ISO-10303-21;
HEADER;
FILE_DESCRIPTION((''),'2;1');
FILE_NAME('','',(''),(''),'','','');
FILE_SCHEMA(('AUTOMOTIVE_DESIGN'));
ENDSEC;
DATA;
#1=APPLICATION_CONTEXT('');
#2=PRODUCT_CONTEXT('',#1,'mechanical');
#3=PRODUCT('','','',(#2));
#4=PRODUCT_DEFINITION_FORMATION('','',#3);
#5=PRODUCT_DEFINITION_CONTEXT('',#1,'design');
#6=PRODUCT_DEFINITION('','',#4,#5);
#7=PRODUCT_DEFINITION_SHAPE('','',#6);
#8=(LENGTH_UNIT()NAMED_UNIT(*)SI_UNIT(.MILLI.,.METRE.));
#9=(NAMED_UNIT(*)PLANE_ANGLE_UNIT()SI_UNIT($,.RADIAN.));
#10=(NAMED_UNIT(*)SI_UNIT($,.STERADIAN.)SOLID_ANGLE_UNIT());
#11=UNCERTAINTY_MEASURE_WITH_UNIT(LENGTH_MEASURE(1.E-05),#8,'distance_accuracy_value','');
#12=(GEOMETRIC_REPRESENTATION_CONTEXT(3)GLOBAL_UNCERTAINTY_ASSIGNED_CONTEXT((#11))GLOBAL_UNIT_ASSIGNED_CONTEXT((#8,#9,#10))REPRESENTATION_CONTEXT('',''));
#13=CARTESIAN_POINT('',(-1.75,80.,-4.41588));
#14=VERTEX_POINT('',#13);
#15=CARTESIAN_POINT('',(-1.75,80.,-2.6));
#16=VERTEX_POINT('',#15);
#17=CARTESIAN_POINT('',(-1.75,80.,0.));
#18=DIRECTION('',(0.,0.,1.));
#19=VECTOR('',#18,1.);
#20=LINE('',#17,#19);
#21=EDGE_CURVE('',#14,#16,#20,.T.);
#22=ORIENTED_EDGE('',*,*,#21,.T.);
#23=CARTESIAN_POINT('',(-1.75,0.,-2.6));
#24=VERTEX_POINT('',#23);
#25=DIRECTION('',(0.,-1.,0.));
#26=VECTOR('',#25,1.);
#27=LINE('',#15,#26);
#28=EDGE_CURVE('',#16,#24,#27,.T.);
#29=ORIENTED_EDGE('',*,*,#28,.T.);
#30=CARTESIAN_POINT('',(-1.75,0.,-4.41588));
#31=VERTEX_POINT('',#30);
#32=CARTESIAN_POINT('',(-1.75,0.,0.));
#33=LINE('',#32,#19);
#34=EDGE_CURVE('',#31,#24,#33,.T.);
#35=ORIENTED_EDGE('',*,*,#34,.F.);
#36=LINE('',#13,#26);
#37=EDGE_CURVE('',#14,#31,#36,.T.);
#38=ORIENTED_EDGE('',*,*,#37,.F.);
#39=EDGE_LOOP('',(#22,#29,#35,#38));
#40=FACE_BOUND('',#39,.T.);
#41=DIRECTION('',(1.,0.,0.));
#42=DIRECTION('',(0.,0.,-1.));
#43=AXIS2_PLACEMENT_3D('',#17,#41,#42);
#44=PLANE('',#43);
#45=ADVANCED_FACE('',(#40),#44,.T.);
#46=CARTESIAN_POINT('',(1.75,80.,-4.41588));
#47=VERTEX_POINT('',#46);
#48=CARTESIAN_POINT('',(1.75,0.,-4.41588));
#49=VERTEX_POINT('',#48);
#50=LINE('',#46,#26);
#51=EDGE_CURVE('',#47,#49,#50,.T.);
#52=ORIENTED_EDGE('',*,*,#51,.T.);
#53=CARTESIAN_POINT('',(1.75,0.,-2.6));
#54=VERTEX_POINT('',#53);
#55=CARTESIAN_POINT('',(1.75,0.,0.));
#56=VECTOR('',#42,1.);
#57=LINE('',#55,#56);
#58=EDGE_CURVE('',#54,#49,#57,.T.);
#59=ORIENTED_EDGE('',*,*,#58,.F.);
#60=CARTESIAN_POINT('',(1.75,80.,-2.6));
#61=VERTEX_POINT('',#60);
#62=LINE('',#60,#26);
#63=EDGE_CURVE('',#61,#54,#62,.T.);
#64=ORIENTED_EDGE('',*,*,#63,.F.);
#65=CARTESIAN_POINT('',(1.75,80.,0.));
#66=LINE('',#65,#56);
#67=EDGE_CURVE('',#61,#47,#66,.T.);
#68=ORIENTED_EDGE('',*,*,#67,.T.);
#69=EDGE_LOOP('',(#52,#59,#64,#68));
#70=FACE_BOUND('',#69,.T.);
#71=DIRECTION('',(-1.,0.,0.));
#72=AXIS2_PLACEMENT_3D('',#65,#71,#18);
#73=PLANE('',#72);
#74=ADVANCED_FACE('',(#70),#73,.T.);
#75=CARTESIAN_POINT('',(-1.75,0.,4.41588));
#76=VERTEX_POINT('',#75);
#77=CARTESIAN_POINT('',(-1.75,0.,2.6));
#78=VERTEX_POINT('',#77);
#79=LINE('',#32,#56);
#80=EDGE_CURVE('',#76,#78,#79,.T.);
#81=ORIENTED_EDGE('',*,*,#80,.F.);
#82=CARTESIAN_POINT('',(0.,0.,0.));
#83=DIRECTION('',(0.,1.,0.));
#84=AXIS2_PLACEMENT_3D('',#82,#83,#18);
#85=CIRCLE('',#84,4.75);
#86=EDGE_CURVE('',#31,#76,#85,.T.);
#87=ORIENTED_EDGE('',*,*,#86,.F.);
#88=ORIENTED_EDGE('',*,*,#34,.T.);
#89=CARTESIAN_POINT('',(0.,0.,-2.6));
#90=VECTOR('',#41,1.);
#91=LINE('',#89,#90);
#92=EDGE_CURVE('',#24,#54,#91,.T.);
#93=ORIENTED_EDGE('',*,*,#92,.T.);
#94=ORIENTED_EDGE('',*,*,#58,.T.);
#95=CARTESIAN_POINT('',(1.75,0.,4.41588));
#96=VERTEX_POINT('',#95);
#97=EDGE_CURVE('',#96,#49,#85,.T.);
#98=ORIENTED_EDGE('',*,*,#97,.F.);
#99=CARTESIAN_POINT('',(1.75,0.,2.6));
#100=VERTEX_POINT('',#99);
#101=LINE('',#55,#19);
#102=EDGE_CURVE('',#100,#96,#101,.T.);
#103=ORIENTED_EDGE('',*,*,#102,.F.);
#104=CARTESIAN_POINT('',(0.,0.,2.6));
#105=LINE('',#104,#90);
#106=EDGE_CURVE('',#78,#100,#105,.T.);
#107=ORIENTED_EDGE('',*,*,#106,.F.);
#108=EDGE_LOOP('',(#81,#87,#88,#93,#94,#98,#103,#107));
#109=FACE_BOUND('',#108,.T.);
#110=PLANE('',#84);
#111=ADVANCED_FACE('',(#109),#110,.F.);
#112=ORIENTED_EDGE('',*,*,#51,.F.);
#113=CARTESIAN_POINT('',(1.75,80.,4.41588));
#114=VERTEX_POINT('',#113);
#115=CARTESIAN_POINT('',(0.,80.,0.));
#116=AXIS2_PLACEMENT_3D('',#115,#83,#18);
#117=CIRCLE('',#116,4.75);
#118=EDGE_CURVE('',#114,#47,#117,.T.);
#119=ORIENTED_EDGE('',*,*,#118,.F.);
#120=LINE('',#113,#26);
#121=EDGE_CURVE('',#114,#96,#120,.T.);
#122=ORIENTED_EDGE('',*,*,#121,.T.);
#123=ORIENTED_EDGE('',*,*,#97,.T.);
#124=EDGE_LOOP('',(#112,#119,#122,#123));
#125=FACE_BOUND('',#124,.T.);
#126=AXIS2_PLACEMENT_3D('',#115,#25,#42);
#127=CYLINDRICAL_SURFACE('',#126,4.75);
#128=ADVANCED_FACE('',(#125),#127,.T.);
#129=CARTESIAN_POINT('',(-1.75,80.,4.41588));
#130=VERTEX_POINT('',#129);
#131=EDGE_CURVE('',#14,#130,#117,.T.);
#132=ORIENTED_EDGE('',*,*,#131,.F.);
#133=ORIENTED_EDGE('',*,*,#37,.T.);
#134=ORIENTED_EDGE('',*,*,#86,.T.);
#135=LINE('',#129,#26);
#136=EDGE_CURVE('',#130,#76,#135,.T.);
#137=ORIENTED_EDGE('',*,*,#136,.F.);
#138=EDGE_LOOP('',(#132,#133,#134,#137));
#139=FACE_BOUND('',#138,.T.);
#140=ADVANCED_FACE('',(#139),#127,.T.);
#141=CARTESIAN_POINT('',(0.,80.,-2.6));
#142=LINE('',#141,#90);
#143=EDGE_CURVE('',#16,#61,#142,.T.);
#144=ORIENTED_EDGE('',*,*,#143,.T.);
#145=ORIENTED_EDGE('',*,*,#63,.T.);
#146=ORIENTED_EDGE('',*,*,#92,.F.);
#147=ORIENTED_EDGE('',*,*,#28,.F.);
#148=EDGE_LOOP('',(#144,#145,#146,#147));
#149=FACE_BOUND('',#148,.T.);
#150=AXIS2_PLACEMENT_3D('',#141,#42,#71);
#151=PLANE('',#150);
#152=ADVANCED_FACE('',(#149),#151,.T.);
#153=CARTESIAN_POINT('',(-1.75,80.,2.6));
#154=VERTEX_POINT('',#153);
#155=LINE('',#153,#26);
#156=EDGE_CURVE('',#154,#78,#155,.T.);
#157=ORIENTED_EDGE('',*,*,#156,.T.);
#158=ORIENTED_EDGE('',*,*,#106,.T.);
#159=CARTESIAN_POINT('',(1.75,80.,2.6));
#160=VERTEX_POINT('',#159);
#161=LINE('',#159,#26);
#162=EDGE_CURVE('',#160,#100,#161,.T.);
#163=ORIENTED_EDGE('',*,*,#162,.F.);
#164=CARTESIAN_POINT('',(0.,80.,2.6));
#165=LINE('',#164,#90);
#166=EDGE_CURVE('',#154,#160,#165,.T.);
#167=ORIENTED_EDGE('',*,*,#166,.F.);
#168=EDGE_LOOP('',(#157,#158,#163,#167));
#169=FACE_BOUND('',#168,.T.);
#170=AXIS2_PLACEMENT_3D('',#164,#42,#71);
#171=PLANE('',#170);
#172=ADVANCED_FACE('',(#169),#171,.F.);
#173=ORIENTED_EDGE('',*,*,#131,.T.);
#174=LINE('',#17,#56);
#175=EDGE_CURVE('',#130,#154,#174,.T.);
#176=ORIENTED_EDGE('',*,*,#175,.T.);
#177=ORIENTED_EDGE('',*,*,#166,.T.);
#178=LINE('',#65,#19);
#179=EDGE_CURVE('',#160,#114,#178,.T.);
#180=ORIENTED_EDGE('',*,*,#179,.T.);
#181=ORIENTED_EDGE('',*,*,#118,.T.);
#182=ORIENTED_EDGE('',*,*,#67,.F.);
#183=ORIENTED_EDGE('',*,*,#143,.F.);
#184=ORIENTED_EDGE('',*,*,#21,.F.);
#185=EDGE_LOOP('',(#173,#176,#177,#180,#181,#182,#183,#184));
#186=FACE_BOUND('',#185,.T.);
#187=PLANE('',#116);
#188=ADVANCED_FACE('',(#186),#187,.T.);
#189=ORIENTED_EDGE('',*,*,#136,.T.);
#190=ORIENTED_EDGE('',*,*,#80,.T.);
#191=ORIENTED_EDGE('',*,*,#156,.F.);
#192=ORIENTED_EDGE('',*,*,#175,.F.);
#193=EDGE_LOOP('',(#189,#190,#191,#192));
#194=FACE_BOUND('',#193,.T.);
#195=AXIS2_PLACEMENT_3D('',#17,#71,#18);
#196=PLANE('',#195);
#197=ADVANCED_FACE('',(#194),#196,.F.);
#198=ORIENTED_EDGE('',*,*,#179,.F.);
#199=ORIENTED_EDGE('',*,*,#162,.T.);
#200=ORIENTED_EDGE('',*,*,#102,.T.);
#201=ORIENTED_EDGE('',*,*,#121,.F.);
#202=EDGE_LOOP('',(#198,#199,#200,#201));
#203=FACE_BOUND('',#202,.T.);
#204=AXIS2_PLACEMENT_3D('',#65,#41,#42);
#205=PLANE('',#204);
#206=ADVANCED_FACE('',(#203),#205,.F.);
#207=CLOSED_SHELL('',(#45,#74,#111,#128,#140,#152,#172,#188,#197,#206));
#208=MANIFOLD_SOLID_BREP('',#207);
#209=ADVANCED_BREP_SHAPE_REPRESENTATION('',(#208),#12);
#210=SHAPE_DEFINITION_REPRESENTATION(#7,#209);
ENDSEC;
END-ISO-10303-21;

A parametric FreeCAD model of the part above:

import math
import FreeCAD as App
import Part
import Sketcher
Q = App.Units.Quantity

doc = App.newDocument("Part")
body = doc.addObject("PartDesign::Body", "Body")

sketch1 = doc.addObject("Sketcher::SketchObject", "Sketch")
body.addObject(sketch1)
sketch1.AttachmentSupport = (doc.XZ_Plane, [""])
sketch1.MapMode = "FlatFace"
sketch1.addGeometry([
    Part.LineSegment(App.Vector(-1.8, -2.6, 0), App.Vector(-1.8, -4.4, 0)),
    Part.ArcOfCircle(Part.Circle(App.Vector(0, 0, 0), App.Vector(0, 0, 1), 4.8), math.radians(112), math.radians(248)),
    Part.LineSegment(App.Vector(-1.8, 4.4, 0), App.Vector(-1.8, 2.6, 0)),
    Part.LineSegment(App.Vector(-1.8, 2.6, 0), App.Vector(1.8, 2.6, 0)),
    Part.LineSegment(App.Vector(1.8, 2.6, 0), App.Vector(1.8, 4.4, 0)),
    Part.ArcOfCircle(Part.Circle(App.Vector(0, 0, 0), App.Vector(0, 0, 1), 4.8), math.radians(0), math.radians(68)),
    Part.ArcOfCircle(Part.Circle(App.Vector(0, 0, 0), App.Vector(0, 0, 1), 4.8), math.radians(-68), math.radians(0)),
    Part.LineSegment(App.Vector(1.8, -4.4, 0), App.Vector(1.8, -2.6, 0)),
    Part.LineSegment(App.Vector(1.8, -2.6, 0), App.Vector(-1.8, -2.6, 0)),
], False)
sketch1.addConstraint([
    Sketcher.Constraint("Coincident", 0, 2, 1, 2),
    Sketcher.Constraint("Coincident", 1, 1, 2, 1),
    Sketcher.Constraint("Coincident", 2, 2, 3, 1),
    Sketcher.Constraint("Coincident", 3, 2, 4, 1),
    Sketcher.Constraint("Coincident", 4, 2, 5, 2),
    Sketcher.Constraint("Tangent", 5, 1, 6, 2),
    Sketcher.Constraint("Coincident", 6, 1, 7, 1),
    Sketcher.Constraint("Coincident", 7, 2, 8, 1),
    Sketcher.Constraint("Coincident", 8, 2, 0, 1),
    Sketcher.Constraint("Vertical", 0),
    Sketcher.Constraint("Vertical", 2),
    Sketcher.Constraint("Horizontal", 3),
    Sketcher.Constraint("Vertical", 4),
    Sketcher.Constraint("Vertical", 7),
    Sketcher.Constraint("Horizontal", 8),
    Sketcher.Constraint("Coincident", 1, 3, -1, 1),
    Sketcher.Constraint("Coincident", 5, 3, -1, 1),
    Sketcher.Constraint("Equal", 1, 5),
    Sketcher.Constraint("Equal", 5, 6),
    Sketcher.Constraint("Symmetric", 2, 2, 7, 2, -1, 1),
    Sketcher.Constraint("PointOnObject", 5, 1, -1),
    Sketcher.Constraint("Horizontal", 1, 1, 4, 2),
    Sketcher.Constraint("Horizontal", 0, 2, 6, 1),
    Sketcher.Constraint("Radius", 1, Q("4.75 mm")),
    Sketcher.Constraint("DistanceX", 3, 1, 3, 2, Q("3.5 mm")),
    Sketcher.Constraint("DistanceY", -1, 1, 2, 2, Q("2.6 mm")),
])
pad1 = doc.addObject("PartDesign::Pad", "Pad")
body.addObject(pad1)
pad1.Profile = sketch1
pad1.Length = 80
pad1.Reversed = True

doc.recompute()
